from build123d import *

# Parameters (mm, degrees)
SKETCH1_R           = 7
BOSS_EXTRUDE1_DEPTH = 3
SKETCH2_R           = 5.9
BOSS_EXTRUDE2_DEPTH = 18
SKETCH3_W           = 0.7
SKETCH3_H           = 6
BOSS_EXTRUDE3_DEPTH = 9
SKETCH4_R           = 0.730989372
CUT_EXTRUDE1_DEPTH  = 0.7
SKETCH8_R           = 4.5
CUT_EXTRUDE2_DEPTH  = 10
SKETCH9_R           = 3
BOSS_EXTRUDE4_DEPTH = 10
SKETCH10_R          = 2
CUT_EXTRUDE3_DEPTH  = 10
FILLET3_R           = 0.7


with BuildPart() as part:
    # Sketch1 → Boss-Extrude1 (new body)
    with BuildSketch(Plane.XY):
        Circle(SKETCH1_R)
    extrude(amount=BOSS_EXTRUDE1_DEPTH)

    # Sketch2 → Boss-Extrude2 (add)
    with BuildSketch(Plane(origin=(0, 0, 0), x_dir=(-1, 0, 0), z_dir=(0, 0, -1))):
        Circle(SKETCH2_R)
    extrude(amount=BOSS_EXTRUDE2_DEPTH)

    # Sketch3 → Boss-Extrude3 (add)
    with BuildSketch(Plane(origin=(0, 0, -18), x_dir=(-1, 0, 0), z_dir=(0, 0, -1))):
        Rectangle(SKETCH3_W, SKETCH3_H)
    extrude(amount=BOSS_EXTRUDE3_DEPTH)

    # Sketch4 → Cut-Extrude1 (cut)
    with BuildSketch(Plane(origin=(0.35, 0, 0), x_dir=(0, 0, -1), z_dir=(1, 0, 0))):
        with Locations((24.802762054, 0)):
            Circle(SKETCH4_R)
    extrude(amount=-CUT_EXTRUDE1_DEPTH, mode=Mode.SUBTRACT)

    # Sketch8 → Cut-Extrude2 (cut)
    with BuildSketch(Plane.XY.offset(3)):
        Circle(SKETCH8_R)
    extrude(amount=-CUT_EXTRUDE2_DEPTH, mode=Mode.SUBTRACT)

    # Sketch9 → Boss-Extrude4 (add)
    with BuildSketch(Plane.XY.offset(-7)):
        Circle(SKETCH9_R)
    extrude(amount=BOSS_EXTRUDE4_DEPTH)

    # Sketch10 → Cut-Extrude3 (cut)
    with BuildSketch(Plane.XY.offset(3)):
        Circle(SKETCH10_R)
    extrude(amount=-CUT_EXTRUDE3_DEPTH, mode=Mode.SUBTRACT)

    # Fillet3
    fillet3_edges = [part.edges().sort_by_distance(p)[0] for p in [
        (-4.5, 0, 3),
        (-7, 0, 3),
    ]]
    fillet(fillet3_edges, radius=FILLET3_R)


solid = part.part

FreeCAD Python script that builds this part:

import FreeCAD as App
import Part
import Sketcher

V = App.Vector


def edges_at(feature, points):
    """Names of the edges that pass closest to the given points."""
    edges = feature.Shape.Edges
    near = lambda p: min(range(len(edges)), key=lambda i: edges[i].distToShape(Part.Vertex(*p))[0])
    return sorted({f"Edge{near(p) + 1}" for p in points})


def add_polygon(sketch, points):
    """Adds a closed chain of lines whose ends are joined by coincident constraints."""
    first, n = sketch.GeometryCount, len(points)
    for a, b in zip(points, points[1:] + points[:1]):
        sketch.addGeometry(Part.LineSegment(App.Vector(*a, 0), App.Vector(*b, 0)), False)
    for i in range(n):
        sketch.addConstraint(Sketcher.Constraint("Coincident", first + i, 2, first + (i + 1) % n, 1))

doc = App.newDocument("Part")
body = doc.addObject("PartDesign::Body", "Body")

# Sketch on XY plane
sketch1 = body.newObject("Sketcher::SketchObject", "Sketch")
sketch1.AttachmentSupport = (doc.getObject("XY_Plane"), [""])
sketch1.MapMode = "FlatFace"
sketch1.addGeometry(Part.Circle(V(0, 0, 0), V(0, 0, 1), 7), False)
sketch1.addConstraint(Sketcher.Constraint("Coincident", 0, 3, -1, 1))
sketch1.addConstraint(Sketcher.Constraint("Diameter", 0, 14.0))
pad1 = body.newObject("PartDesign::Pad", "Pad")
pad1.Profile = sketch1
pad1.Length = 3

# Sketch on XY plane
sketch2 = body.newObject("Sketcher::SketchObject", "Sketch001")
sketch2.AttachmentSupport = (doc.getObject("XY_Plane"), [""])
sketch2.MapMode = "FlatFace"
sketch2.addGeometry(Part.Circle(V(0, 0, 0), V(0, 0, 1), 6), False)
sketch2.addConstraint(Sketcher.Constraint("Coincident", 0, 3, -1, 1))
sketch2.addConstraint(Sketcher.Constraint("Diameter", 0, 11.8))
pad2 = body.newObject("PartDesign::Pad", "Pad001")
pad2.Profile = sketch2
pad2.Length = 18
pad2.Reversed = True

# Sketch on XY plane
sketch3 = body.newObject("Sketcher::SketchObject", "Sketch002")
sketch3.AttachmentSupport = (doc.getObject("XY_Plane"), [""])
sketch3.MapMode = "FlatFace"
sketch3.AttachmentOffset = App.Placement(V(0, 0, -18), App.Rotation())
add_polygon(sketch3, [(0.3, 3), (0.3, -3), (-0.3, -3), (-0.3, 3)])  # lines 0-3
sketch3.addConstraint(Sketcher.Constraint("Vertical", 0))
sketch3.addConstraint(Sketcher.Constraint("Horizontal", 1))
sketch3.addConstraint(Sketcher.Constraint("Vertical", 2))
sketch3.addConstraint(Sketcher.Constraint("Horizontal", 3))
sketch3.addConstraint(Sketcher.Constraint("Symmetric", 0, 2, 2, 2, -1, 1))
sketch3.addConstraint(Sketcher.Constraint("DistanceY", 0, 2, 0, 1, 6.0))
sketch3.addConstraint(Sketcher.Constraint("DistanceX", 1, 2, 1, 1, 0.7))
pad3 = body.newObject("PartDesign::Pad", "Pad002")
pad3.Profile = sketch3
pad3.Length = 9
pad3.Reversed = True

# Sketch on YZ plane
sketch4 = body.newObject("Sketcher::SketchObject", "Sketch003")
sketch4.AttachmentSupport = (doc.getObject("YZ_Plane"), [""])
sketch4.MapMode = "FlatFace"
sketch4.AttachmentOffset = App.Placement(V(0, 0, 0.35), App.Rotation())
sketch4.addGeometry(Part.Circle(V(0, -24.8, 0), V(0, 0, 1), 0.7), False)
sketch4.addConstraint(Sketcher.Constraint("PointOnObject", 0, 3, -2))
sketch4.addConstraint(Sketcher.Constraint("Diameter", 0, 1.461979))
sketch4.addConstraint(Sketcher.Constraint("DistanceY", 0, 3, -1, 1, 24.802762))
pocket1 = body.newObject("PartDesign::Pocket", "Pocket")
pocket1.Profile = sketch4
pocket1.Length = 0.7

# Sketch on XY plane
sketch5 = body.newObject("Sketcher::SketchObject", "Sketch004")
sketch5.AttachmentSupport = (doc.getObject("XY_Plane"), [""])
sketch5.MapMode = "FlatFace"
sketch5.AttachmentOffset = App.Placement(V(0, 0, 3), App.Rotation())
sketch5.addGeometry(Part.Circle(V(0, 0, 0), V(0, 0, 1), 4.5), False)
sketch5.addConstraint(Sketcher.Constraint("Coincident", 0, 3, -1, 1))
sketch5.addConstraint(Sketcher.Constraint("Diameter", 0, 9.0))
pocket2 = body.newObject("PartDesign::Pocket", "Pocket001")
pocket2.Profile = sketch5
pocket2.Length = 10

# Sketch on XY plane
sketch6 = body.newObject("Sketcher::SketchObject", "Sketch005")
sketch6.AttachmentSupport = (doc.getObject("XY_Plane"), [""])
sketch6.MapMode = "FlatFace"
sketch6.AttachmentOffset = App.Placement(V(0, 0, -7), App.Rotation())
sketch6.addGeometry(Part.Circle(V(0, 0, 0), V(0, 0, 1), 3), False)
sketch6.addConstraint(Sketcher.Constraint("Coincident", 0, 3, -1, 1))
sketch6.addConstraint(Sketcher.Constraint("Diameter", 0, 6.0))
pad4 = body.newObject("PartDesign::Pad", "Pad003")
pad4.Profile = sketch6
pad4.Length = 10

# Sketch on XY plane
sketch7 = body.newObject("Sketcher::SketchObject", "Sketch006")
sketch7.AttachmentSupport = (doc.getObject("XY_Plane"), [""])
sketch7.MapMode = "FlatFace"
sketch7.AttachmentOffset = App.Placement(V(0, 0, 3), App.Rotation())
sketch7.addGeometry(Part.Circle(V(0, 0, 0), V(0, 0, 1), 2), False)
sketch7.addConstraint(Sketcher.Constraint("Coincident", 0, 3, -1, 1))
sketch7.addConstraint(Sketcher.Constraint("Diameter", 0, 4.0))
pocket3 = body.newObject("PartDesign::Pocket", "Pocket002")
pocket3.Profile = sketch7
pocket3.Length = 10
doc.recompute()

fillet = body.newObject("PartDesign::Fillet", "Fillet")
fillet.Base = (pocket3, edges_at(pocket3, [(-4.5, 0, 3), (-7, 0, 3)]))
fillet.Radius = 0.7

doc.recompute()
